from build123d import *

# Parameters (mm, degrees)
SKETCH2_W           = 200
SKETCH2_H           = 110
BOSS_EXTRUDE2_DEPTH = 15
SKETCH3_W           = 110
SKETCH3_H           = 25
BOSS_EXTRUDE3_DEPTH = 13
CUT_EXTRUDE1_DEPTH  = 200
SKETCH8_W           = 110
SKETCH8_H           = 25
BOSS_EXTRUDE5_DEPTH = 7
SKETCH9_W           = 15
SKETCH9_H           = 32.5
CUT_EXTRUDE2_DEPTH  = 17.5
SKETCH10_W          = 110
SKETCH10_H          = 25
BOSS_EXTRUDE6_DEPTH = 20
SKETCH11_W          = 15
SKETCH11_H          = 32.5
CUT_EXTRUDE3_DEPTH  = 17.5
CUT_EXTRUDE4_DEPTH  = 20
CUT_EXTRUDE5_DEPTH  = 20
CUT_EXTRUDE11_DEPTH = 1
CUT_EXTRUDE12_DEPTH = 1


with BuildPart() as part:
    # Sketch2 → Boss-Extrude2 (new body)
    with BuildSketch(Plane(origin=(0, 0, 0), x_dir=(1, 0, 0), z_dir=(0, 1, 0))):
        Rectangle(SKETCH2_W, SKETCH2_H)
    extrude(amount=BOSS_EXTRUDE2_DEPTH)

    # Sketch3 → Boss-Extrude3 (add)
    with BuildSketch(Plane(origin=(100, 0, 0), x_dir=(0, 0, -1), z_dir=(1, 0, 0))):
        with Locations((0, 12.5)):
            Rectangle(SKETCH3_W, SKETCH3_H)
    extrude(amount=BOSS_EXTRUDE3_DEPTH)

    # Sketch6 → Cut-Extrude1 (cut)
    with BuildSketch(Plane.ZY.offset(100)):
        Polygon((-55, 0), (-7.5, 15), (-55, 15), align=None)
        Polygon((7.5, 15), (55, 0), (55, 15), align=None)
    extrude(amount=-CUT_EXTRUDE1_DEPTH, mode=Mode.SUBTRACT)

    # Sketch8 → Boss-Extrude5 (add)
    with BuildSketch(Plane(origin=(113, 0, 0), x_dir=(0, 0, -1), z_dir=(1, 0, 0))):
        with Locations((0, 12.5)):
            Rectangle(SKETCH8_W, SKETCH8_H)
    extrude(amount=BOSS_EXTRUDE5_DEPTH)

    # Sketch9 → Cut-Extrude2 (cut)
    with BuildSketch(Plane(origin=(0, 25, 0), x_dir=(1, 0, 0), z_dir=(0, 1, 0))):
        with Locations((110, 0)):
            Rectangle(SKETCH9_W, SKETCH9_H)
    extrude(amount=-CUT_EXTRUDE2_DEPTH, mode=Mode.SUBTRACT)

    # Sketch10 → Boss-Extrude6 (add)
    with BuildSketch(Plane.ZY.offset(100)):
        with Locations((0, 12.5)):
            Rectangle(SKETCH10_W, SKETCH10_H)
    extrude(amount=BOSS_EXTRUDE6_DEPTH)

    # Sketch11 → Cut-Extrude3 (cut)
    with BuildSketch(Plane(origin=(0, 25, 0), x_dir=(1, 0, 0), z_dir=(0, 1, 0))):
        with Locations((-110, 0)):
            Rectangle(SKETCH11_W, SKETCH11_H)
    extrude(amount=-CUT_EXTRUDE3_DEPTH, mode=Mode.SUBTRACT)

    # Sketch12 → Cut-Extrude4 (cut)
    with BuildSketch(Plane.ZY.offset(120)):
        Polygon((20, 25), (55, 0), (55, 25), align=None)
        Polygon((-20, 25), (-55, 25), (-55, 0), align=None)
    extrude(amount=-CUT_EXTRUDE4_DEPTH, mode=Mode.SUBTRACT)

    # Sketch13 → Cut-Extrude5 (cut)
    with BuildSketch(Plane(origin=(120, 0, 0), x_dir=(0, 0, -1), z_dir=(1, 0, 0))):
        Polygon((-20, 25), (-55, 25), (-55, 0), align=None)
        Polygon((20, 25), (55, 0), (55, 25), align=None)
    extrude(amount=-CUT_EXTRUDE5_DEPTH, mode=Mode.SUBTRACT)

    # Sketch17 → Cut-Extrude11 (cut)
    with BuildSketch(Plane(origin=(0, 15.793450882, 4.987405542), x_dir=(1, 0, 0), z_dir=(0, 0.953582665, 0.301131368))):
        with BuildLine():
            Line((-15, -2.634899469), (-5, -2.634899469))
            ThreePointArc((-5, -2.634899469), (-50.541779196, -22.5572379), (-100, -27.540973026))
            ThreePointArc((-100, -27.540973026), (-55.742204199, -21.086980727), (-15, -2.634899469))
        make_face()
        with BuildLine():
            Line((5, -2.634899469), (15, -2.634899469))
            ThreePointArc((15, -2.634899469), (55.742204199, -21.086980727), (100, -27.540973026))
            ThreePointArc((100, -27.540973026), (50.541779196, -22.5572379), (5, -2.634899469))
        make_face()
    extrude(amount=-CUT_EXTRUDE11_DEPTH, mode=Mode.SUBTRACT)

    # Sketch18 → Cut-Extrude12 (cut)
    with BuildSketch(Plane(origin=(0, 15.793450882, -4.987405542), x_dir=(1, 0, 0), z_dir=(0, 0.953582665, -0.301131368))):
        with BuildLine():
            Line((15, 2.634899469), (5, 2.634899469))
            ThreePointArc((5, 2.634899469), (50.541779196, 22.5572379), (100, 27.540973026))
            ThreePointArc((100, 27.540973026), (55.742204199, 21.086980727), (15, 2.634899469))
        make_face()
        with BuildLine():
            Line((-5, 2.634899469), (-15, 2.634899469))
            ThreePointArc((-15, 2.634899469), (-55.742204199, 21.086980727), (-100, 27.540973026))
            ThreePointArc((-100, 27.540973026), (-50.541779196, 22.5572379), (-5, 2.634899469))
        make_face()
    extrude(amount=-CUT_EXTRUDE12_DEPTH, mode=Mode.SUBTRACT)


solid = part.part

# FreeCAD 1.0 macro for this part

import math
import FreeCAD as App
import Part
import Sketcher

V = App.Vector
Q = App.Units.Quantity


def add_polygon(sketch, points):
    """Adds a closed chain of lines whose ends are joined by coincident constraints."""
    first, n = sketch.GeometryCount, len(points)
    for a, b in zip(points, points[1:] + points[:1]):
        sketch.addGeometry(Part.LineSegment(App.Vector(*a, 0), App.Vector(*b, 0)), False)
    for i in range(n):
        sketch.addConstraint(Sketcher.Constraint("Coincident", first + i, 2, first + (i + 1) % n, 1))

doc = App.newDocument("Part")
params = doc.addObject("Spreadsheet::Sheet", "Params")
for row, (alias, value) in enumerate([
    ("sketch1_width", "200 mm"),
    ("sketch1_height", "110 mm"),
    ("pad1_length", "15 mm"),
    ("sketch2_width", "25 mm"),
    ("sketch2_height", "110 mm"),
    ("pad2_length", "13 mm"),
    ("sketch3_width", "15 mm"),
    ("sketch3_height", "47.5 mm"),
    ("pocket1_length", "200 mm"),
    ("sketch4_width", "25 mm"),
    ("sketch4_height", "110 mm"),
    ("pad3_length", "7 mm"),
    ("sketch5_width", "15 mm"),
    ("sketch5_height", "32.5 mm"),
    ("pocket2_length", "17.5 mm"),
    ("sketch6_width", "25 mm"),
    ("sketch6_height", "110 mm"),
    ("pad4_length", "20 mm"),
    ("sketch7_width", "15 mm"),
    ("sketch7_height", "32.5 mm"),
    ("pocket3_length", "17.5 mm"),
    ("sketch8_width", "25 mm"),
    ("sketch8_height", "35 mm"),
    ("pocket4_length", "20 mm"),
    ("sketch9_width", "25 mm"),
    ("sketch9_height", "35 mm"),
    ("pocket5_length", "20 mm"),
    ("sketch10_radius", "160 mm"),
    ("sketch10_width", "10 mm"),
    ("pocket6_length", "1 mm"),
    ("sketch11_radius", "160 mm"),
    ("sketch11_width", "10 mm"),
    ("pocket7_length", "1 mm"),
], start=1):
    params.set(f"A{row}", alias)
    params.set(f"B{row}", "=" + value)
    params.setAlias(f"B{row}", alias)

body = doc.addObject("PartDesign::Body", "Body")

sketch1 = body.newObject("Sketcher::SketchObject", "Sketch")
sketch1.AttachmentSupport = (doc.getObject("XZ_Plane"), [""])
sketch1.MapMode = "FlatFace"
add_polygon(sketch1, [(-100, -55), (-100, 55), (100, 55), (100, -55)])
sketch1.addConstraint(Sketcher.Constraint("Vertical", 0))
sketch1.addConstraint(Sketcher.Constraint("Horizontal", 1))
sketch1.addConstraint(Sketcher.Constraint("Vertical", 2))
sketch1.addConstraint(Sketcher.Constraint("Horizontal", 3))
sketch1.addConstraint(Sketcher.Constraint("Symmetric", 0, 2, 2, 2, -1, 1))
sketch1.addConstraint(Sketcher.Constraint("DistanceX", 1, 1, 1, 2, Q("200 mm")))
sketch1.addConstraint(Sketcher.Constraint("DistanceY", 0, 1, 0, 2, Q("110 mm")))
sketch1.setExpression("Constraints[9]", "Params.sketch1_width")
sketch1.setExpression("Constraints[10]", "Params.sketch1_height")
pad1 = body.newObject("PartDesign::Pad", "Pad")
pad1.Profile = sketch1
pad1.setExpression("Length", "Params.pad1_length")
pad1.Reversed = True

sketch2 = body.newObject("Sketcher::SketchObject", "Sketch001")
sketch2.AttachmentSupport = (doc.getObject("YZ_Plane"), [""])
sketch2.MapMode = "FlatFace"
sketch2.AttachmentOffset = App.Placement(V(0, 0, 100), App.Rotation())
add_polygon(sketch2, [(25, 55), (0, 55), (0, -55), (25, -55)])
sketch2.addConstraint(Sketcher.Constraint("Horizontal", 0))
sketch2.addConstraint(Sketcher.Constraint("Vertical", 1))
sketch2.addConstraint(Sketcher.Constraint("Horizontal", 2))
sketch2.addConstraint(Sketcher.Constraint("Vertical", 3))
sketch2.addConstraint(Sketcher.Constraint("Symmetric", 0, 2, 1, 2, -1, 1))
sketch2.addConstraint(Sketcher.Constraint("DistanceX", 0, 2, 0, 1, Q("25 mm")))
sketch2.addConstraint(Sketcher.Constraint("DistanceY", 1, 2, 1, 1, Q("110 mm")))
sketch2.setExpression("Constraints[9]", "Params.sketch2_width")
sketch2.setExpression("Constraints[10]", "Params.sketch2_height")
pad2 = body.newObject("PartDesign::Pad", "Pad001")
pad2.Profile = sketch2
pad2.setExpression("Length", "Params.pad2_length")

sketch3 = body.newObject("Sketcher::SketchObject", "Sketch002")
sketch3.AttachmentSupport = (doc.getObject("YZ_Plane"), [""])
sketch3.MapMode = "FlatFace"
sketch3.AttachmentOffset = App.Placement(V(0, 0, -100), App.Rotation())
add_polygon(sketch3, [(0, -55), (15, -8), (15, -55)])
add_polygon(sketch3, [(15, 8), (0, 55), (15, 55)])
sketch3.addConstraint(Sketcher.Constraint("Vertical", 1))
sketch3.addConstraint(Sketcher.Constraint("Horizontal", 2))
sketch3.addConstraint(Sketcher.Constraint("Horizontal", 4))
sketch3.addConstraint(Sketcher.Constraint("Vertical", 5))
sketch3.addConstraint(Sketcher.Constraint("Symmetric", 2, 2, 3, 2, -1, 1))
sketch3.addConstraint(Sketcher.Constraint("Symmetric", 0, 2, 5, 2, -1))
sketch3.addConstraint(Sketcher.Constraint("PointOnObject", 2, 2, -2))
sketch3.addConstraint(Sketcher.Constraint("DistanceX", 2, 2, 2, 1, Q("15 mm")))
sketch3.addConstraint(Sketcher.Constraint("DistanceY", 1, 2, 1, 1, Q("47.5 mm")))
sketch3.addConstraint(Sketcher.Constraint("DistanceY", 1, 2, -1, 1, Q("55 mm")))
sketch3.setExpression("Constraints[13]", "Params.sketch3_width")
sketch3.setExpression("Constraints[14]", "Params.sketch3_height")
pocket1 = body.newObject("PartDesign::Pocket", "Pocket")
pocket1.Profile = sketch3
pocket1.setExpression("Length", "Params.pocket1_length")
pocket1.Reversed = True

sketch4 = body.newObject("Sketcher::SketchObject", "Sketch003")
sketch4.AttachmentSupport = (doc.getObject("YZ_Plane"), [""])
sketch4.MapMode = "FlatFace"
sketch4.AttachmentOffset = App.Placement(V(0, 0, 113), App.Rotation())
add_polygon(sketch4, [(25, 55), (0, 55), (0, -55), (25, -55)])
sketch4.addConstraint(Sketcher.Constraint("Horizontal", 0))
sketch4.addConstraint(Sketcher.Constraint("Vertical", 1))
sketch4.addConstraint(Sketcher.Constraint("Horizontal", 2))
sketch4.addConstraint(Sketcher.Constraint("Vertical", 3))
sketch4.addConstraint(Sketcher.Constraint("Symmetric", 0, 2, 1, 2, -1, 1))
sketch4.addConstraint(Sketcher.Constraint("DistanceX", 0, 2, 0, 1, Q("25 mm")))
sketch4.addConstraint(Sketcher.Constraint("DistanceY", 1, 2, 1, 1, Q("110 mm")))
sketch4.setExpression("Constraints[9]", "Params.sketch4_width")
sketch4.setExpression("Constraints[10]", "Params.sketch4_height")
pad3 = body.newObject("PartDesign::Pad", "Pad002")
pad3.Profile = sketch4
pad3.setExpression("Length", "Params.pad3_length")

sketch5 = body.newObject("Sketcher::SketchObject", "Sketch004")
sketch5.AttachmentSupport = (doc.getObject("XZ_Plane"), [""])
sketch5.MapMode = "FlatFace"
sketch5.AttachmentOffset = App.Placement(V(0, 0, -25), App.Rotation())
add_polygon(sketch5, [(102, -16), (102, 16), (118, 16), (118, -16)])
sketch5.addConstraint(Sketcher.Constraint("Vertical", 0))
sketch5.addConstraint(Sketcher.Constraint("Horizontal", 1))
sketch5.addConstraint(Sketcher.Constraint("Vertical", 2))
sketch5.addConstraint(Sketcher.Constraint("Horizontal", 3))
sketch5.addConstraint(Sketcher.Constraint("DistanceX", 1, 1, 1, 2, Q("15 mm")))
sketch5.addConstraint(Sketcher.Constraint("DistanceY", 0, 1, 0, 2, Q("32.5 mm")))
sketch5.addConstraint(Sketcher.Constraint("DistanceX", -1, 1, 0, 2, Q("102.5 mm")))
sketch5.addConstraint(Sketcher.Constraint("DistanceY", -1, 1, 0, 2, Q("16.25 mm")))
sketch5.setExpression("Constraints[8]", "Params.sketch5_width")
sketch5.setExpression("Constraints[9]", "Params.sketch5_height")
pocket2 = body.newObject("PartDesign::Pocket", "Pocket001")
pocket2.Profile = sketch5
pocket2.setExpression("Length", "Params.pocket2_length")
pocket2.Reversed = True

sketch6 = body.newObject("Sketcher::SketchObject", "Sketch005")
sketch6.AttachmentSupport = (doc.getObject("YZ_Plane"), [""])
sketch6.MapMode = "FlatFace"
sketch6.AttachmentOffset = App.Placement(V(0, 0, -100), App.Rotation())
add_polygon(sketch6, [(25, -55), (0, -55), (0, 55), (25, 55)])
sketch6.addConstraint(Sketcher.Constraint("Horizontal", 0))
sketch6.addConstraint(Sketcher.Constraint("Vertical", 1))
sketch6.addConstraint(Sketcher.Constraint("Horizontal", 2))
sketch6.addConstraint(Sketcher.Constraint("Vertical", 3))
sketch6.addConstraint(Sketcher.Constraint("Symmetric", 0, 2, 1, 2, -1, 1))
sketch6.addConstraint(Sketcher.Constraint("DistanceX", 0, 2, 0, 1, Q("25 mm")))
sketch6.addConstraint(Sketcher.Constraint("DistanceY", 1, 1, 1, 2, Q("110 mm")))
sketch6.setExpression("Constraints[9]", "Params.sketch6_width")
sketch6.setExpression("Constraints[10]", "Params.sketch6_height")
pad4 = body.newObject("PartDesign::Pad", "Pad003")
pad4.Profile = sketch6
pad4.setExpression("Length", "Params.pad4_length")
pad4.Reversed = True

sketch7 = body.newObject("Sketcher::SketchObject", "Sketch006")
sketch7.AttachmentSupport = (doc.getObject("XZ_Plane"), [""])
sketch7.MapMode = "FlatFace"
sketch7.AttachmentOffset = App.Placement(V(0, 0, -25), App.Rotation())
add_polygon(sketch7, [(-118, -16), (-118, 16), (-102, 16), (-102, -16)])
sketch7.addConstraint(Sketcher.Constraint("Vertical", 0))
sketch7.addConstraint(Sketcher.Constraint("Horizontal", 1))
sketch7.addConstraint(Sketcher.Constraint("Vertical", 2))
sketch7.addConstraint(Sketcher.Constraint("Horizontal", 3))
sketch7.addConstraint(Sketcher.Constraint("DistanceX", 1, 1, 1, 2, Q("15 mm")))
sketch7.addConstraint(Sketcher.Constraint("DistanceY", 0, 1, 0, 2, Q("32.5 mm")))
sketch7.addConstraint(Sketcher.Constraint("DistanceX", 0, 2, -1, 1, Q("117.5 mm")))
sketch7.addConstraint(Sketcher.Constraint("DistanceY", -1, 1, 0, 2, Q("16.25 mm")))
sketch7.setExpression("Constraints[8]", "Params.sketch7_width")
sketch7.setExpression("Constraints[9]", "Params.sketch7_height")
pocket3 = body.newObject("PartDesign::Pocket", "Pocket002")
pocket3.Profile = sketch7
pocket3.setExpression("Length", "Params.pocket3_length")
pocket3.Reversed = True

sketch8 = body.newObject("Sketcher::SketchObject", "Sketch007")
sketch8.AttachmentSupport = (doc.getObject("YZ_Plane"), [""])
sketch8.MapMode = "FlatFace"
sketch8.AttachmentOffset = App.Placement(V(0, 0, -120), App.Rotation())
add_polygon(sketch8, [(25, 20), (0, 55), (25, 55)])
add_polygon(sketch8, [(25, -20), (25, -55), (0, -55)])
sketch8.addConstraint(Sketcher.Constraint("Horizontal", 1))
sketch8.addConstraint(Sketcher.Constraint("Vertical", 2))
sketch8.addConstraint(Sketcher.Constraint("Vertical", 3))
sketch8.addConstraint(Sketcher.Constraint("Horizontal", 4))
sketch8.addConstraint(Sketcher.Constraint("Symmetric", 0, 2, 4, 2, -1, 1))
sketch8.addConstraint(Sketcher.Constraint("Symmetric", 2, 2, 5, 2, -1))
sketch8.addConstraint(Sketcher.Constraint("PointOnObject", 0, 2, -2))
sketch8.addConstraint(Sketcher.Constraint("DistanceX", 1, 1, 1, 2, Q("25 mm")))
sketch8.addConstraint(Sketcher.Constraint("DistanceY", 2, 2, 2, 1, Q("35 mm")))
sketch8.addConstraint(Sketcher.Constraint("DistanceY", -1, 1, 0, 2, Q("55 mm")))
sketch8.setExpression("Constraints[13]", "Params.sketch8_width")
sketch8.setExpression("Constraints[14]", "Params.sketch8_height")
pocket4 = body.newObject("PartDesign::Pocket", "Pocket003")
pocket4.Profile = sketch8
pocket4.setExpression("Length", "Params.pocket4_length")
pocket4.Reversed = True

sketch9 = body.newObject("Sketcher::SketchObject", "Sketch008")
sketch9.AttachmentSupport = (doc.getObject("YZ_Plane"), [""])
sketch9.MapMode = "FlatFace"
sketch9.AttachmentOffset = App.Placement(V(0, 0, 120), App.Rotation())
add_polygon(sketch9, [(25, 20), (25, 55), (0, 55)])
add_polygon(sketch9, [(25, -20), (0, -55), (25, -55)])
sketch9.addConstraint(Sketcher.Constraint("Vertical", 0))
sketch9.addConstraint(Sketcher.Constraint("Horizontal", 1))
sketch9.addConstraint(Sketcher.Constraint("Horizontal", 4))
sketch9.addConstraint(Sketcher.Constraint("Vertical", 5))
sketch9.addConstraint(Sketcher.Constraint("Symmetric", 1, 2, 3, 2, -1, 1))
sketch9.addConstraint(Sketcher.Constraint("Symmetric", 2, 2, 5, 2, -1))
sketch9.addConstraint(Sketcher.Constraint("PointOnObject", 1, 2, -2))
sketch9.addConstraint(Sketcher.Constraint("DistanceX", 1, 2, 1, 1, Q("25 mm")))
sketch9.addConstraint(Sketcher.Constraint("DistanceY", 0, 1, 0, 2, Q("35 mm")))
sketch9.addConstraint(Sketcher.Constraint("DistanceY", -1, 1, 0, 2, Q("55 mm")))
sketch9.setExpression("Constraints[13]", "Params.sketch9_width")
sketch9.setExpression("Constraints[14]", "Params.sketch9_height")
pocket5 = body.newObject("PartDesign::Pocket", "Pocket004")
pocket5.Profile = sketch9
pocket5.setExpression("Length", "Params.pocket5_length")

sketch10 = body.newObject("Sketcher::SketchObject", "Sketch009")
sketch10.Placement = App.Placement(V(0, 15.793451, 4.987406), App.Rotation(V(1, 0, 0), V(0, 0.301131368, -0.953582665), V(0, 0.953582665, 0.301131368), "ZXY"))
sketch10.addGeometry(Part.LineSegment(V(-5, -3, 0), V(-15, -3, 0)), False)
sketch10.addGeometry(Part.ArcOfCircle(Part.Circle(V(-101, 132, 0), V(0, 0, 1), 160), math.radians(-90), math.radians(-58)), False)
sketch10.addGeometry(Part.ArcOfCircle(Part.Circle(V(-91, 132, 0), V(0, 0, 1), 160), math.radians(-93), math.radians(-57)), False)
sketch10.addGeometry(Part.LineSegment(V(15, -3, 0), V(5, -3, 0)), False)
sketch10.addGeometry(Part.ArcOfCircle(Part.Circle(V(91, 132, 0), V(0, 0, 1), 160), math.radians(-123), math.radians(-87)), False)
sketch10.addGeometry(Part.ArcOfCircle(Part.Circle(V(101, 132, 0), V(0, 0, 1), 160), math.radians(-122), math.radians(-90)), False)
sketch10.addConstraint(Sketcher.Constraint("Coincident", 0, 2, 1, 2))
sketch10.addConstraint(Sketcher.Constraint("Coincident", 1, 1, 2, 1))
sketch10.addConstraint(Sketcher.Constraint("Coincident", 2, 2, 0, 1))
sketch10.addConstraint(Sketcher.Constraint("Coincident", 3, 2, 4, 1))
sketch10.addConstraint(Sketcher.Constraint("Coincident", 4, 2, 5, 2))
sketch10.addConstraint(Sketcher.Constraint("Coincident", 5, 1, 3, 1))
sketch10.addConstraint(Sketcher.Constraint("Horizontal", 0))
sketch10.addConstraint(Sketcher.Constraint("Horizontal", 3))
sketch10.addConstraint(Sketcher.Constraint("Equal", 1, 2))
sketch10.addConstraint(Sketcher.Constraint("Equal", 2, 4))
sketch10.addConstraint(Sketcher.Constraint("Equal", 4, 5))
sketch10.addConstraint(Sketcher.Constraint("Symmetric", 2, 3, 4, 3, -2))
sketch10.addConstraint(Sketcher.Constraint("Symmetric", 1, 3, 5, 3, -2))
sketch10.addConstraint(Sketcher.Constraint("Horizontal", 2, 2, 3, 2))
sketch10.addConstraint(Sketcher.Constraint("Radius", 1, Q("160 mm")))
sketch10.addConstraint(Sketcher.Constraint("DistanceX", 0, 2, 0, 1, Q("10 mm")))
sketch10.addConstraint(Sketcher.Constraint("DistanceX", 0, 2, -1, 1, Q("15 mm")))
sketch10.addConstraint(Sketcher.Constraint("DistanceX", 1, 1, -1, 1, Q("100 mm")))
sketch10.addConstraint(Sketcher.Constraint("DistanceY", 0, 2, -1, 1, Q("2.634899 mm")))
sketch10.addConstraint(Sketcher.Constraint("DistanceY", -1, 1, 1, 3, Q("132.45735 mm")))
sketch10.setExpression("Constraints[14]", "Params.sketch10_radius")
sketch10.setExpression("Constraints[15]", "Params.sketch10_width")
pocket6 = body.newObject("PartDesign::Pocket", "Pocket005")
pocket6.Profile = sketch10
pocket6.setExpression("Length", "Params.pocket6_length")

sketch11 = body.newObject("Sketcher::SketchObject", "Sketch010")
sketch11.Placement = App.Placement(V(0, 15.793451, -4.987406), App.Rotation(V(1, 0, 0), V(0, -0.301131368, -0.953582665), V(0, 0.953582665, -0.301131368), "ZXY"))
sketch11.addGeometry(Part.LineSegment(V(5, 3, 0), V(15, 3, 0)), False)
sketch11.addGeometry(Part.ArcOfCircle(Part.Circle(V(101, -132, 0), V(0, 0, 1), 160), math.radians(90), math.radians(122)), False)
sketch11.addGeometry(Part.ArcOfCircle(Part.Circle(V(91, -132, 0), V(0, 0, 1), 160), math.radians(87), math.radians(123)), False)
sketch11.addGeometry(Part.LineSegment(V(-15, 3, 0), V(-5, 3, 0)), False)
sketch11.addGeometry(Part.ArcOfCircle(Part.Circle(V(-91, -132, 0), V(0, 0, 1), 160), math.radians(57), math.radians(93)), False)
sketch11.addGeometry(Part.ArcOfCircle(Part.Circle(V(-101, -132, 0), V(0, 0, 1), 160), math.radians(58), math.radians(90)), False)
sketch11.addConstraint(Sketcher.Constraint("Coincident", 0, 2, 1, 2))
sketch11.addConstraint(Sketcher.Constraint("Coincident", 1, 1, 2, 1))
sketch11.addConstraint(Sketcher.Constraint("Coincident", 2, 2, 0, 1))
sketch11.addConstraint(Sketcher.Constraint("Coincident", 3, 2, 4, 1))
sketch11.addConstraint(Sketcher.Constraint("Coincident", 4, 2, 5, 2))
sketch11.addConstraint(Sketcher.Constraint("Coincident", 5, 1, 3, 1))
sketch11.addConstraint(Sketcher.Constraint("Horizontal", 0))
sketch11.addConstraint(Sketcher.Constraint("Horizontal", 3))
sketch11.addConstraint(Sketcher.Constraint("Equal", 1, 2))
sketch11.addConstraint(Sketcher.Constraint("Equal", 2, 4))
sketch11.addConstraint(Sketcher.Constraint("Equal", 4, 5))
sketch11.addConstraint(Sketcher.Constraint("Symmetric", 2, 3, 4, 3, -2))
sketch11.addConstraint(Sketcher.Constraint("Symmetric", 1, 3, 5, 3, -2))
sketch11.addConstraint(Sketcher.Constraint("Horizontal", 2, 2, 3, 2))
sketch11.addConstraint(Sketcher.Constraint("Radius", 1, Q("160 mm")))
sketch11.addConstraint(Sketcher.Constraint("DistanceX", 0, 1, 0, 2, Q("10 mm")))
sketch11.addConstraint(Sketcher.Constraint("DistanceX", -1, 1, 0, 2, Q("15 mm")))
sketch11.addConstraint(Sketcher.Constraint("DistanceX", -1, 1, 1, 1, Q("100 mm")))
sketch11.addConstraint(Sketcher.Constraint("DistanceY", -1, 1, 0, 2, Q("2.634899 mm")))
sketch11.addConstraint(Sketcher.Constraint("DistanceY", 1, 3, -1, 1, Q("132.45735 mm")))
sketch11.setExpression("Constraints[14]", "Params.sketch11_radius")
sketch11.setExpression("Constraints[15]", "Params.sketch11_width")
pocket7 = body.newObject("PartDesign::Pocket", "Pocket006")
pocket7.Profile = sketch11
pocket7.setExpression("Length", "Params.pocket7_length")

doc.recompute()
